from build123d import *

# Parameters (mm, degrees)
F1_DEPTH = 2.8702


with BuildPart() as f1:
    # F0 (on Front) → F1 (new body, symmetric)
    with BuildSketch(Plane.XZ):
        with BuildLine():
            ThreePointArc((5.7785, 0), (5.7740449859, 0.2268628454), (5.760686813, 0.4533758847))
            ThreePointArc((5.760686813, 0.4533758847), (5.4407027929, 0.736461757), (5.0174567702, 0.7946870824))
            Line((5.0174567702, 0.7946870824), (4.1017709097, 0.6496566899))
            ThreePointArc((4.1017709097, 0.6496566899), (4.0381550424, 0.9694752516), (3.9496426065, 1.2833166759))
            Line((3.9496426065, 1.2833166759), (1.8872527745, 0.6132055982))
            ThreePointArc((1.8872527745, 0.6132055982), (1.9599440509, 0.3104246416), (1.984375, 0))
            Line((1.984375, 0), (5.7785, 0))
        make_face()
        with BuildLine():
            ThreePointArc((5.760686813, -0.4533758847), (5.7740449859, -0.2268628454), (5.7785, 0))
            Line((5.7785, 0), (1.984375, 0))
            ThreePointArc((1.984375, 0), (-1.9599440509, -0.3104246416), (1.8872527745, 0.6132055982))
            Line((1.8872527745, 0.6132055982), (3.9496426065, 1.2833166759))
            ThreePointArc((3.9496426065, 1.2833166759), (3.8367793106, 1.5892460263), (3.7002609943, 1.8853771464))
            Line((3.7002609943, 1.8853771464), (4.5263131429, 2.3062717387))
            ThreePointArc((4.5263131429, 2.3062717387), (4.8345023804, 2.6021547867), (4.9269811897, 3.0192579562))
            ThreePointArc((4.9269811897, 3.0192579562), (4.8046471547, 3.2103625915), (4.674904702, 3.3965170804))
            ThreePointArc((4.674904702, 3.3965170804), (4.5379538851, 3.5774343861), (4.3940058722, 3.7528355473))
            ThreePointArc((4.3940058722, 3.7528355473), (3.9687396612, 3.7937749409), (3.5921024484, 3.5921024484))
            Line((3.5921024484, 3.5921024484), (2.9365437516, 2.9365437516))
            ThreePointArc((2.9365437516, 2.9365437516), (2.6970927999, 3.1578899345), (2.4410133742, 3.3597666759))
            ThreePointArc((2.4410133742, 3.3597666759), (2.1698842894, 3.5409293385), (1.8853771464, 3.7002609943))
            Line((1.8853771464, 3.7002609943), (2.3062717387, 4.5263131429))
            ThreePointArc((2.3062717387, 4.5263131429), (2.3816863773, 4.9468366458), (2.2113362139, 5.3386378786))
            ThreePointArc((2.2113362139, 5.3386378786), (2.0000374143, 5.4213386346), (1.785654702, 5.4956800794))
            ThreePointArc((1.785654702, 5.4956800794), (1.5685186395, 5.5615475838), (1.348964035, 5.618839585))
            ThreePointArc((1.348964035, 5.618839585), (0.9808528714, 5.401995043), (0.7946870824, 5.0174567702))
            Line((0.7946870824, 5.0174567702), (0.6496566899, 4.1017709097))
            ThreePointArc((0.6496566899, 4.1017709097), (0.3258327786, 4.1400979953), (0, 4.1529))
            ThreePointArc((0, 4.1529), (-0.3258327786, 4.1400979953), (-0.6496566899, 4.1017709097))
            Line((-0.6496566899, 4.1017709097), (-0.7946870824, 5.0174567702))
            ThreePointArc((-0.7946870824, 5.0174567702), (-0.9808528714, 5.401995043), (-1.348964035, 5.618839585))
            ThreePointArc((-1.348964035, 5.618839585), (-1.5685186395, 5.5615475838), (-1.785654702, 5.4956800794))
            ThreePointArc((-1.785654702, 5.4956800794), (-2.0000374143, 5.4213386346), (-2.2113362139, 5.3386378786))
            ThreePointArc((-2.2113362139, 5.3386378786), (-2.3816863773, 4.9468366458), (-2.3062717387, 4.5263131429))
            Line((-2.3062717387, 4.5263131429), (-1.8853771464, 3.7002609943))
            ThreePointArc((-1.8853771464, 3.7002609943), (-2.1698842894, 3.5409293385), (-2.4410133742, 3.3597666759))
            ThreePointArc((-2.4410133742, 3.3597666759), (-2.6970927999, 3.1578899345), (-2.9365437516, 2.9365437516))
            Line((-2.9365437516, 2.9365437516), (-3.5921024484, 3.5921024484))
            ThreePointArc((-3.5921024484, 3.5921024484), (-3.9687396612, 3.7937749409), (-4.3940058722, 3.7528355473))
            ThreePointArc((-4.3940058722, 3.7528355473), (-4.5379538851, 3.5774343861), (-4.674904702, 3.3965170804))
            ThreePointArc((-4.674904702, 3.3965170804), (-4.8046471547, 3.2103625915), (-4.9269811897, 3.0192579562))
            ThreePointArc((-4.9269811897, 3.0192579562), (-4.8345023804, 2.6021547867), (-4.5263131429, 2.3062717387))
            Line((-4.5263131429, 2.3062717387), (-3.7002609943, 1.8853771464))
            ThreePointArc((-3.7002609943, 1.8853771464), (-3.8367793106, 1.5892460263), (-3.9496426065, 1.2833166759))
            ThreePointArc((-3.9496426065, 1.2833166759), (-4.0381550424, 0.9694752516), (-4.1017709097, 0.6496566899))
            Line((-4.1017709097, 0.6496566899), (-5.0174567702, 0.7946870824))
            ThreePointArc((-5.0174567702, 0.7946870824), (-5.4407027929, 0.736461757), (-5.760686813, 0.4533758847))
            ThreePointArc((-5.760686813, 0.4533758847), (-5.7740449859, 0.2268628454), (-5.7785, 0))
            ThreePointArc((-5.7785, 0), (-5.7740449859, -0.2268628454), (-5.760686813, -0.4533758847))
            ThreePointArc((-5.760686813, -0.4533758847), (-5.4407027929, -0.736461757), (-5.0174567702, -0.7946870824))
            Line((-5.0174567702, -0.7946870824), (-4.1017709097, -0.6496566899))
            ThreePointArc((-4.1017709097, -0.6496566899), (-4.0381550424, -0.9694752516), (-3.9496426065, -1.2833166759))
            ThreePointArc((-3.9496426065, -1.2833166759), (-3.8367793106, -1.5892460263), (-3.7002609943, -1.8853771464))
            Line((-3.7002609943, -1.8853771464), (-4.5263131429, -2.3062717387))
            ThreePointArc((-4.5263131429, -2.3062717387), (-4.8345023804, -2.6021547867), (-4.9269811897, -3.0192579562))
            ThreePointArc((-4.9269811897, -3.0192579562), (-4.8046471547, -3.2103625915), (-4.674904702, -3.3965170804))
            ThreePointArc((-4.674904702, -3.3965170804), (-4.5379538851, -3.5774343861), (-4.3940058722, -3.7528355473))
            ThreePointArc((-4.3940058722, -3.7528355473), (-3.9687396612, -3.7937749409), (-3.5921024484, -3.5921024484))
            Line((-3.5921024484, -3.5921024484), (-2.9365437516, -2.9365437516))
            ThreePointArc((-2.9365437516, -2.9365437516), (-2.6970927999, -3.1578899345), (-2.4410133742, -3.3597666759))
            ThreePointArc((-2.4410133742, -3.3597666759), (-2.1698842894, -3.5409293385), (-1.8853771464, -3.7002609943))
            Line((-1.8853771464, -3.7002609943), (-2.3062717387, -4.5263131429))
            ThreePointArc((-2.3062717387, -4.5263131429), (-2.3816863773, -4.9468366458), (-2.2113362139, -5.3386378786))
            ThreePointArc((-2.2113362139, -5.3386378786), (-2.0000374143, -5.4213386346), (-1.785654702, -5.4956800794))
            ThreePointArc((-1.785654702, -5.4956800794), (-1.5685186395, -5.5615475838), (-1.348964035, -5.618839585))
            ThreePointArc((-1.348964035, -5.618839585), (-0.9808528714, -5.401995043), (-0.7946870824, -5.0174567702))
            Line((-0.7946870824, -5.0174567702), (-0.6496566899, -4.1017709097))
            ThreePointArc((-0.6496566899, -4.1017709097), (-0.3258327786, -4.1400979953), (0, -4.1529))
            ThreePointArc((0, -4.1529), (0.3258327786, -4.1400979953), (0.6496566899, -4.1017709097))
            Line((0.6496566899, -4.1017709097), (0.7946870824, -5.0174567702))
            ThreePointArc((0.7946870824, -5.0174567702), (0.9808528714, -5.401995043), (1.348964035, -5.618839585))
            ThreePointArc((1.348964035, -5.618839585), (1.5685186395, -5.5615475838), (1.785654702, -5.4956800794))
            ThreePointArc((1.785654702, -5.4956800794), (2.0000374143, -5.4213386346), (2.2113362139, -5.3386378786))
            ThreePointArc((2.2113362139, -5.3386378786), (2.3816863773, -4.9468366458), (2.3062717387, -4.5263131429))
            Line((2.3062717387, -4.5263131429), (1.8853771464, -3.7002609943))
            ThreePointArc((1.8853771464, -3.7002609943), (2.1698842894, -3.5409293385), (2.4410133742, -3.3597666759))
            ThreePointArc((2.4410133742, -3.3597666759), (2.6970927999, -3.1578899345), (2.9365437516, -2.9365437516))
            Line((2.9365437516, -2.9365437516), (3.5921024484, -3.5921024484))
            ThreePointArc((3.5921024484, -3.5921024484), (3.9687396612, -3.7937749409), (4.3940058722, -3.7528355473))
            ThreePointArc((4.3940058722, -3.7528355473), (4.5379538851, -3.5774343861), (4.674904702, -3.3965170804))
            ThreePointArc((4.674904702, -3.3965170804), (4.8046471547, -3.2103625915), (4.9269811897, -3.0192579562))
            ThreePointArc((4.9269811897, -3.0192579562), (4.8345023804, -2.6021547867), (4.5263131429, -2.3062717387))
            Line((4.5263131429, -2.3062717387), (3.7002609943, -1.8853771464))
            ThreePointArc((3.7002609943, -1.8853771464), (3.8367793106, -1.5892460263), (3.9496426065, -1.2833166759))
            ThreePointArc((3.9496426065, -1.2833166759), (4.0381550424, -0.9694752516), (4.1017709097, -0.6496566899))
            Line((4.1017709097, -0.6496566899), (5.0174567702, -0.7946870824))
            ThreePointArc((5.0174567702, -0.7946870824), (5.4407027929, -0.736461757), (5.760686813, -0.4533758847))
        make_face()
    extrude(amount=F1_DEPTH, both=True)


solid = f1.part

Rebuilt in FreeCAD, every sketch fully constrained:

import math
import FreeCAD as App
import Part
import Sketcher

V = App.Vector
Q = App.Units.Quantity

doc = App.newDocument("Part")
body = doc.addObject("PartDesign::Body", "Body")

sketch1 = doc.addObject("Sketcher::SketchObject", "Sketch")
body.addObject(sketch1)
sketch1.AttachmentSupport = (doc.XZ_Plane, [""])
sketch1.MapMode = "FlatFace"
sketch1.addGeometry(Part.ArcOfCircle(Part.Circle(V(0, 0, 0), V(0, 0, 1), 5.78), math.radians(0), math.radians(4.5)), False)
sketch1.addGeometry(Part.ArcOfCircle(Part.Circle(V(5.13, 0.07, 0), V(0, 0, 1), 0.74), math.radians(32), math.radians(99)), False)
sketch1.addGeometry(Part.LineSegment(V(5.02, 0.79, 0), V(4.1, 0.65, 0)), False)
sketch1.addGeometry(Part.ArcOfCircle(Part.Circle(V(0, 0, 0), V(0, 0, 1), 4.15), math.radians(9), math.radians(18)), False)
sketch1.addGeometry(Part.ArcOfCircle(Part.Circle(V(0, 0, 0), V(0, 0, 1), 4.15), math.radians(18), math.radians(27)), False)
sketch1.addGeometry(Part.LineSegment(V(3.7, 1.89, 0), V(4.53, 2.31, 0)), False)
sketch1.addGeometry(Part.ArcOfCircle(Part.Circle(V(4.19, 2.96, 0), V(0, 0, 1), 0.74), math.radians(-63), math.radians(4)), False)
sketch1.addGeometry(Part.ArcOfCircle(Part.Circle(V(0, 0, 0), V(0, 0, 1), 5.78), math.radians(31.5), math.radians(36)), False)
sketch1.addGeometry(Part.ArcOfCircle(Part.Circle(V(0, 0, 0), V(0, 0, 1), 5.78), math.radians(36), math.radians(40.5)), False)
sketch1.addGeometry(Part.ArcOfCircle(Part.Circle(V(4.11, 3.07, 0), V(0, 0, 1), 0.74), math.radians(68), math.radians(135)), False)
sketch1.addGeometry(Part.LineSegment(V(3.59, 3.59, 0), V(2.94, 2.94, 0)), False)
sketch1.addGeometry(Part.ArcOfCircle(Part.Circle(V(0, 0, 0), V(0, 0, 1), 4.15), math.radians(45), math.radians(63)), False)
sketch1.addGeometry(Part.LineSegment(V(1.89, 3.7, 0), V(2.31, 4.53, 0)), False)
sketch1.addGeometry(Part.ArcOfCircle(Part.Circle(V(1.65, 4.86, 0), V(0, 0, 1), 0.74), math.radians(-27), math.radians(40)), False)
sketch1.addGeometry(Part.ArcOfCircle(Part.Circle(V(0, 0, 0), V(0, 0, 1), 5.78), math.radians(67.5), math.radians(72)), False)
sketch1.addGeometry(Part.ArcOfCircle(Part.Circle(V(0, 0, 0), V(0, 0, 1), 5.78), math.radians(72), math.radians(76.5)), False)
sketch1.addGeometry(Part.ArcOfCircle(Part.Circle(V(1.52, 4.9, 0), V(0, 0, 1), 0.74), math.radians(104), math.radians(171)), False)
sketch1.addGeometry(Part.LineSegment(V(0.79, 5.02, 0), V(0.65, 4.1, 0)), False)
sketch1.addGeometry(Part.ArcOfCircle(Part.Circle(V(0, 0, 0), V(0, 0, 1), 4.15), math.radians(81), math.radians(90)), False)
sketch1.addGeometry(Part.ArcOfCircle(Part.Circle(V(0, 0, 0), V(0, 0, 1), 4.15), math.radians(90), math.radians(99)), False)
sketch1.addGeometry(Part.LineSegment(V(-0.65, 4.1, 0), V(-0.79, 5.02, 0)), False)
sketch1.addGeometry(Part.ArcOfCircle(Part.Circle(V(-1.52, 4.9, 0), V(0, 0, 1), 0.74), math.radians(9), math.radians(76)), False)
sketch1.addGeometry(Part.ArcOfCircle(Part.Circle(V(0, 0, 0), V(0, 0, 1), 5.78), math.radians(103.5), math.radians(108)), False)
sketch1.addGeometry(Part.ArcOfCircle(Part.Circle(V(0, 0, 0), V(0, 0, 1), 5.78), math.radians(108), math.radians(112.5)), False)
sketch1.addGeometry(Part.ArcOfCircle(Part.Circle(V(-1.65, 4.86, 0), V(0, 0, 1), 0.74), math.radians(140), math.radians(207)), False)
sketch1.addGeometry(Part.LineSegment(V(-2.31, 4.53, 0), V(-1.89, 3.7, 0)), False)
sketch1.addGeometry(Part.ArcOfCircle(Part.Circle(V(0, 0, 0), V(0, 0, 1), 4.15), math.radians(117), math.radians(135)), False)
sketch1.addGeometry(Part.LineSegment(V(-2.94, 2.94, 0), V(-3.59, 3.59, 0)), False)
sketch1.addGeometry(Part.ArcOfCircle(Part.Circle(V(-4.11, 3.07, 0), V(0, 0, 1), 0.74), math.radians(45), math.radians(112)), False)
sketch1.addGeometry(Part.ArcOfCircle(Part.Circle(V(0, 0, 0), V(0, 0, 1), 5.78), math.radians(139.5), math.radians(144)), False)
sketch1.addGeometry(Part.ArcOfCircle(Part.Circle(V(0, 0, 0), V(0, 0, 1), 5.78), math.radians(144), math.radians(148.5)), False)
sketch1.addGeometry(Part.ArcOfCircle(Part.Circle(V(-4.19, 2.96, 0), V(0, 0, 1), 0.74), math.radians(176), math.radians(243)), False)
sketch1.addGeometry(Part.LineSegment(V(-4.53, 2.31, 0), V(-3.7, 1.89, 0)), False)
sketch1.addGeometry(Part.ArcOfCircle(Part.Circle(V(0, 0, 0), V(0, 0, 1), 4.15), math.radians(153), math.radians(162)), False)
sketch1.addGeometry(Part.ArcOfCircle(Part.Circle(V(0, 0, 0), V(0, 0, 1), 4.15), math.radians(162), math.radians(171)), False)
sketch1.addGeometry(Part.LineSegment(V(-4.1, 0.65, 0), V(-5.02, 0.79, 0)), False)
sketch1.addGeometry(Part.ArcOfCircle(Part.Circle(V(-5.13, 0.07, 0), V(0, 0, 1), 0.74), math.radians(81), math.radians(148)), False)
sketch1.addGeometry(Part.ArcOfCircle(Part.Circle(V(0, 0, 0), V(0, 0, 1), 5.78), math.radians(175.5), math.radians(180)), False)
sketch1.addGeometry(Part.ArcOfCircle(Part.Circle(V(0, 0, 0), V(0, 0, 1), 5.78), math.radians(-180), math.radians(-175.5)), False)
sketch1.addGeometry(Part.ArcOfCircle(Part.Circle(V(-5.13, -0.07, 0), V(0, 0, 1), 0.74), math.radians(-148), math.radians(-81)), False)
sketch1.addGeometry(Part.LineSegment(V(-5.02, -0.79, 0), V(-4.1, -0.65, 0)), False)
sketch1.addGeometry(Part.ArcOfCircle(Part.Circle(V(0, 0, 0), V(0, 0, 1), 4.15), math.radians(-171), math.radians(-162)), False)
sketch1.addGeometry(Part.ArcOfCircle(Part.Circle(V(0, 0, 0), V(0, 0, 1), 4.15), math.radians(-162), math.radians(-153)), False)
sketch1.addGeometry(Part.LineSegment(V(-3.7, -1.89, 0), V(-4.53, -2.31, 0)), False)
sketch1.addGeometry(Part.ArcOfCircle(Part.Circle(V(-4.19, -2.96, 0), V(0, 0, 1), 0.74), math.radians(117), math.radians(184)), False)
sketch1.addGeometry(Part.ArcOfCircle(Part.Circle(V(0, 0, 0), V(0, 0, 1), 5.78), math.radians(-148.5), math.radians(-144)), False)
sketch1.addGeometry(Part.ArcOfCircle(Part.Circle(V(0, 0, 0), V(0, 0, 1), 5.78), math.radians(-144), math.radians(-139.5)), False)
sketch1.addGeometry(Part.ArcOfCircle(Part.Circle(V(-4.11, -3.07, 0), V(0, 0, 1), 0.74), math.radians(-112), math.radians(-45)), False)
sketch1.addGeometry(Part.LineSegment(V(-3.59, -3.59, 0), V(-2.94, -2.94, 0)), False)
sketch1.addGeometry(Part.ArcOfCircle(Part.Circle(V(0, 0, 0), V(0, 0, 1), 4.15), math.radians(-135), math.radians(-117)), False)
sketch1.addGeometry(Part.LineSegment(V(-1.89, -3.7, 0), V(-2.31, -4.53, 0)), False)
sketch1.addGeometry(Part.ArcOfCircle(Part.Circle(V(-1.65, -4.86, 0), V(0, 0, 1), 0.74), math.radians(153), math.radians(220)), False)
sketch1.addGeometry(Part.ArcOfCircle(Part.Circle(V(0, 0, 0), V(0, 0, 1), 5.78), math.radians(-112.5), math.radians(-108)), False)
sketch1.addGeometry(Part.ArcOfCircle(Part.Circle(V(0, 0, 0), V(0, 0, 1), 5.78), math.radians(-108), math.radians(-103.5)), False)
sketch1.addGeometry(Part.ArcOfCircle(Part.Circle(V(-1.52, -4.9, 0), V(0, 0, 1), 0.74), math.radians(-76), math.radians(-9)), False)
sketch1.addGeometry(Part.LineSegment(V(-0.79, -5.02, 0), V(-0.65, -4.1, 0)), False)
sketch1.addGeometry(Part.ArcOfCircle(Part.Circle(V(0, 0, 0), V(0, 0, 1), 4.15), math.radians(-99), math.radians(-90)), False)
sketch1.addGeometry(Part.ArcOfCircle(Part.Circle(V(0, 0, 0), V(0, 0, 1), 4.15), math.radians(-90), math.radians(-81)), False)
sketch1.addGeometry(Part.LineSegment(V(0.65, -4.1, 0), V(0.79, -5.02, 0)), False)
sketch1.addGeometry(Part.ArcOfCircle(Part.Circle(V(1.52, -4.9, 0), V(0, 0, 1), 0.74), math.radians(-171), math.radians(-104)), False)
sketch1.addGeometry(Part.ArcOfCircle(Part.Circle(V(0, 0, 0), V(0, 0, 1), 5.78), math.radians(-76.5), math.radians(-72)), False)
sketch1.addGeometry(Part.ArcOfCircle(Part.Circle(V(0, 0, 0), V(0, 0, 1), 5.78), math.radians(-72), math.radians(-67.5)), False)
sketch1.addGeometry(Part.ArcOfCircle(Part.Circle(V(1.65, -4.86, 0), V(0, 0, 1), 0.74), math.radians(-40), math.radians(27)), False)
sketch1.addGeometry(Part.LineSegment(V(2.31, -4.53, 0), V(1.89, -3.7, 0)), False)
sketch1.addGeometry(Part.ArcOfCircle(Part.Circle(V(0, 0, 0), V(0, 0, 1), 4.15), math.radians(-63), math.radians(-45)), False)
sketch1.addGeometry(Part.LineSegment(V(2.94, -2.94, 0), V(3.59, -3.59, 0)), False)
sketch1.addGeometry(Part.ArcOfCircle(Part.Circle(V(4.11, -3.07, 0), V(0, 0, 1), 0.74), math.radians(-135), math.radians(-68)), False)
sketch1.addGeometry(Part.ArcOfCircle(Part.Circle(V(0, 0, 0), V(0, 0, 1), 5.78), math.radians(-40.5), math.radians(-36)), False)
sketch1.addGeometry(Part.ArcOfCircle(Part.Circle(V(0, 0, 0), V(0, 0, 1), 5.78), math.radians(-36), math.radians(-31.5)), False)
sketch1.addGeometry(Part.ArcOfCircle(Part.Circle(V(4.19, -2.96, 0), V(0, 0, 1), 0.74), math.radians(-4), math.radians(63)), False)
sketch1.addGeometry(Part.LineSegment(V(4.53, -2.31, 0), V(3.7, -1.89, 0)), False)
sketch1.addGeometry(Part.ArcOfCircle(Part.Circle(V(0, 0, 0), V(0, 0, 1), 4.15), math.radians(-27), math.radians(-18)), False)
sketch1.addGeometry(Part.ArcOfCircle(Part.Circle(V(0, 0, 0), V(0, 0, 1), 4.15), math.radians(-18), math.radians(-9)), False)
sketch1.addGeometry(Part.LineSegment(V(4.1, -0.65, 0), V(5.02, -0.79, 0)), False)
sketch1.addGeometry(Part.ArcOfCircle(Part.Circle(V(5.13, -0.07, 0), V(0, 0, 1), 0.74), math.radians(-99), math.radians(-32)), False)
sketch1.addGeometry(Part.ArcOfCircle(Part.Circle(V(0, 0, 0), V(0, 0, 1), 5.78), math.radians(-4.5), math.radians(0)), False)
sketch1.addGeometry(Part.ArcOfCircle(Part.Circle(V(0, 0, 0), V(0, 0, 1), 1.98), math.radians(0), math.radians(18)), False)
sketch1.addGeometry(Part.ArcOfCircle(Part.Circle(V(0, 0, 0), V(0, 0, 1), 1.98), math.radians(18), math.radians(360)), False)
sketch1.addConstraint(Sketcher.Constraint("Coincident", 0, 2, 1, 1))
sketch1.addConstraint(Sketcher.Constraint("Tangent", 1, 2, 2, 1))
sketch1.addConstraint(Sketcher.Constraint("Coincident", 2, 2, 3, 1))
sketch1.addConstraint(Sketcher.Constraint("Tangent", 3, 2, 4, 1))
sketch1.addConstraint(Sketcher.Constraint("Coincident", 4, 2, 5, 1))
sketch1.addConstraint(Sketcher.Constraint("Tangent", 5, 2, 6, 1))
sketch1.addConstraint(Sketcher.Constraint("Coincident", 6, 2, 7, 1))
sketch1.addConstraint(Sketcher.Constraint("Tangent", 7, 2, 8, 1))
sketch1.addConstraint(Sketcher.Constraint("Coincident", 8, 2, 9, 1))
sketch1.addConstraint(Sketcher.Constraint("Tangent", 9, 2, 10, 1))
sketch1.addConstraint(Sketcher.Constraint("Coincident", 10, 2, 11, 1))
sketch1.addConstraint(Sketcher.Constraint("Coincident", 11, 2, 12, 1))
sketch1.addConstraint(Sketcher.Constraint("Tangent", 12, 2, 13, 1))
sketch1.addConstraint(Sketcher.Constraint("Coincident", 13, 2, 14, 1))
sketch1.addConstraint(Sketcher.Constraint("Tangent", 14, 2, 15, 1))
sketch1.addConstraint(Sketcher.Constraint("Coincident", 15, 2, 16, 1))
sketch1.addConstraint(Sketcher.Constraint("Tangent", 16, 2, 17, 1))
sketch1.addConstraint(Sketcher.Constraint("Coincident", 17, 2, 18, 1))
sketch1.addConstraint(Sketcher.Constraint("Tangent", 18, 2, 19, 1))
sketch1.addConstraint(Sketcher.Constraint("Coincident", 19, 2, 20, 1))
sketch1.addConstraint(Sketcher.Constraint("Tangent", 20, 2, 21, 1))
sketch1.addConstraint(Sketcher.Constraint("Coincident", 21, 2, 22, 1))
sketch1.addConstraint(Sketcher.Constraint("Tangent", 22, 2, 23, 1))
sketch1.addConstraint(Sketcher.Constraint("Coincident", 23, 2, 24, 1))
sketch1.addConstraint(Sketcher.Constraint("Tangent", 24, 2, 25, 1))
sketch1.addConstraint(Sketcher.Constraint("Coincident", 25, 2, 26, 1))
sketch1.addConstraint(Sketcher.Constraint("Coincident", 26, 2, 27, 1))
sketch1.addConstraint(Sketcher.Constraint("Tangent", 27, 2, 28, 1))
sketch1.addConstraint(Sketcher.Constraint("Coincident", 28, 2, 29, 1))
sketch1.addConstraint(Sketcher.Constraint("Tangent", 29, 2, 30, 1))
sketch1.addConstraint(Sketcher.Constraint("Coincident", 30, 2, 31, 1))
sketch1.addConstraint(Sketcher.Constraint("Tangent", 31, 2, 32, 1))
sketch1.addConstraint(Sketcher.Constraint("Coincident", 32, 2, 33, 1))
sketch1.addConstraint(Sketcher.Constraint("Tangent", 33, 2, 34, 1))
sketch1.addConstraint(Sketcher.Constraint("Coincident", 34, 2, 35, 1))
sketch1.addConstraint(Sketcher.Constraint("Tangent", 35, 2, 36, 1))
sketch1.addConstraint(Sketcher.Constraint("Coincident", 36, 2, 37, 1))
sketch1.addConstraint(Sketcher.Constraint("Tangent", 37, 2, 38, 1))
sketch1.addConstraint(Sketcher.Constraint("Coincident", 38, 2, 39, 1))
sketch1.addConstraint(Sketcher.Constraint("Tangent", 39, 2, 40, 1))
sketch1.addConstraint(Sketcher.Constraint("Coincident", 40, 2, 41, 1))
sketch1.addConstraint(Sketcher.Constraint("Tangent", 41, 2, 42, 1))
sketch1.addConstraint(Sketcher.Constraint("Coincident", 42, 2, 43, 1))
sketch1.addConstraint(Sketcher.Constraint("Tangent", 43, 2, 44, 1))
sketch1.addConstraint(Sketcher.Constraint("Coincident", 44, 2, 45, 1))
sketch1.addConstraint(Sketcher.Constraint("Tangent", 45, 2, 46, 1))
sketch1.addConstraint(Sketcher.Constraint("Coincident", 46, 2, 47, 1))
sketch1.addConstraint(Sketcher.Constraint("Tangent", 47, 2, 48, 1))
sketch1.addConstraint(Sketcher.Constraint("Coincident", 48, 2, 49, 1))
sketch1.addConstraint(Sketcher.Constraint("Coincident", 49, 2, 50, 1))
sketch1.addConstraint(Sketcher.Constraint("Tangent", 50, 2, 51, 1))
sketch1.addConstraint(Sketcher.Constraint("Coincident", 51, 2, 52, 1))
sketch1.addConstraint(Sketcher.Constraint("Tangent", 52, 2, 53, 1))
sketch1.addConstraint(Sketcher.Constraint("Coincident", 53, 2, 54, 1))
sketch1.addConstraint(Sketcher.Constraint("Tangent", 54, 2, 55, 1))
sketch1.addConstraint(Sketcher.Constraint("Coincident", 55, 2, 56, 1))
sketch1.addConstraint(Sketcher.Constraint("Tangent", 56, 2, 57, 1))
sketch1.addConstraint(Sketcher.Constraint("Coincident", 57, 2, 58, 1))
sketch1.addConstraint(Sketcher.Constraint("Tangent", 58, 2, 59, 1))
sketch1.addConstraint(Sketcher.Constraint("Coincident", 59, 2, 60, 1))
sketch1.addConstraint(Sketcher.Constraint("Tangent", 60, 2, 61, 1))
sketch1.addConstraint(Sketcher.Constraint("Coincident", 61, 2, 62, 1))
sketch1.addConstraint(Sketcher.Constraint("Tangent", 62, 2, 63, 1))
sketch1.addConstraint(Sketcher.Constraint("Coincident", 63, 2, 64, 1))
sketch1.addConstraint(Sketcher.Constraint("Coincident", 64, 2, 65, 1))
sketch1.addConstraint(Sketcher.Constraint("Tangent", 65, 2, 66, 1))
sketch1.addConstraint(Sketcher.Constraint("Coincident", 66, 2, 67, 1))
sketch1.addConstraint(Sketcher.Constraint("Tangent", 67, 2, 68, 1))
sketch1.addConstraint(Sketcher.Constraint("Coincident", 68, 2, 69, 1))
sketch1.addConstraint(Sketcher.Constraint("Tangent", 69, 2, 70, 1))
sketch1.addConstraint(Sketcher.Constraint("Coincident", 70, 2, 71, 1))
sketch1.addConstraint(Sketcher.Constraint("Tangent", 71, 2, 72, 1))
sketch1.addConstraint(Sketcher.Constraint("Coincident", 72, 2, 73, 1))
sketch1.addConstraint(Sketcher.Constraint("Tangent", 73, 2, 74, 1))
sketch1.addConstraint(Sketcher.Constraint("Coincident", 74, 2, 75, 1))
sketch1.addConstraint(Sketcher.Constraint("Tangent", 75, 2, 0, 1))
sketch1.addConstraint(Sketcher.Constraint("Tangent", 76, 1, 77, 2))
sketch1.addConstraint(Sketcher.Constraint("Coincident", 77, 1, 76, 2))
sketch1.addConstraint(Sketcher.Constraint("Coincident", 0, 3, -1, 1))
sketch1.addConstraint(Sketcher.Constraint("Coincident", 3, 3, -1, 1))
sketch1.addConstraint(Sketcher.Constraint("Coincident", 7, 3, -1, 1))
sketch1.addConstraint(Sketcher.Constraint("Coincident", 11, 3, -1, 1))
sketch1.addConstraint(Sketcher.Constraint("Coincident", 14, 3, -1, 1))
sketch1.addConstraint(Sketcher.Constraint("Coincident", 18, 3, -1, 1))
sketch1.addConstraint(Sketcher.Constraint("Coincident", 22, 3, -1, 1))
sketch1.addConstraint(Sketcher.Constraint("Coincident", 26, 3, -1, 1))
sketch1.addConstraint(Sketcher.Constraint("Coincident", 29, 3, -1, 1))
sketch1.addConstraint(Sketcher.Constraint("Coincident", 33, 3, -1, 1))
sketch1.addConstraint(Sketcher.Constraint("Coincident", 37, 3, -1, 1))
sketch1.addConstraint(Sketcher.Constraint("Coincident", 41, 3, -1, 1))
sketch1.addConstraint(Sketcher.Constraint("Coincident", 45, 3, -1, 1))
sketch1.addConstraint(Sketcher.Constraint("Coincident", 49, 3, -1, 1))
sketch1.addConstraint(Sketcher.Constraint("Coincident", 52, 3, -1, 1))
sketch1.addConstraint(Sketcher.Constraint("Coincident", 56, 3, -1, 1))
sketch1.addConstraint(Sketcher.Constraint("Coincident", 60, 3, -1, 1))
sketch1.addConstraint(Sketcher.Constraint("Coincident", 64, 3, -1, 1))
sketch1.addConstraint(Sketcher.Constraint("Coincident", 67, 3, -1, 1))
sketch1.addConstraint(Sketcher.Constraint("Coincident", 71, 3, -1, 1))
sketch1.addConstraint(Sketcher.Constraint("Coincident", 76, 3, -1, 1))
sketch1.addConstraint(Sketcher.Constraint("Equal", 3, 4))
sketch1.addConstraint(Sketcher.Constraint("Equal", 1, 6))
sketch1.addConstraint(Sketcher.Constraint("Equal", 0, 7))
sketch1.addConstraint(Sketcher.Constraint("Equal", 7, 8))
sketch1.addConstraint(Sketcher.Constraint("Equal", 6, 9))
sketch1.addConstraint(Sketcher.Constraint("Equal", 4, 11))
sketch1.addConstraint(Sketcher.Constraint("Equal", 9, 13))
sketch1.addConstraint(Sketcher.Constraint("Equal", 8, 14))
sketch1.addConstraint(Sketcher.Constraint("Equal", 14, 15))
sketch1.addConstraint(Sketcher.Constraint("Equal", 13, 16))
sketch1.addConstraint(Sketcher.Constraint("Equal", 11, 18))
sketch1.addConstraint(Sketcher.Constraint("Equal", 18, 19))
sketch1.addConstraint(Sketcher.Constraint("Equal", 16, 21))
sketch1.addConstraint(Sketcher.Constraint("Equal", 15, 22))
sketch1.addConstraint(Sketcher.Constraint("Equal", 22, 23))
sketch1.addConstraint(Sketcher.Constraint("Equal", 21, 24))
sketch1.addConstraint(Sketcher.Constraint("Equal", 19, 26))
sketch1.addConstraint(Sketcher.Constraint("Equal", 24, 28))
sketch1.addConstraint(Sketcher.Constraint("Equal", 23, 29))
sketch1.addConstraint(Sketcher.Constraint("Equal", 29, 30))
sketch1.addConstraint(Sketcher.Constraint("Equal", 28, 31))
sketch1.addConstraint(Sketcher.Constraint("Equal", 26, 33))
sketch1.addConstraint(Sketcher.Constraint("Equal", 33, 34))
sketch1.addConstraint(Sketcher.Constraint("Equal", 31, 36))
sketch1.addConstraint(Sketcher.Constraint("Equal", 30, 37))
sketch1.addConstraint(Sketcher.Constraint("Equal", 37, 38))
sketch1.addConstraint(Sketcher.Constraint("Equal", 36, 39))
sketch1.addConstraint(Sketcher.Constraint("Equal", 34, 41))
sketch1.addConstraint(Sketcher.Constraint("Equal", 41, 42))
sketch1.addConstraint(Sketcher.Constraint("Equal", 39, 44))
sketch1.addConstraint(Sketcher.Constraint("Equal", 38, 45))
sketch1.addConstraint(Sketcher.Constraint("Equal", 45, 46))
sketch1.addConstraint(Sketcher.Constraint("Equal", 44, 47))
sketch1.addConstraint(Sketcher.Constraint("Equal", 42, 49))
sketch1.addConstraint(Sketcher.Constraint("Equal", 47, 51))
sketch1.addConstraint(Sketcher.Constraint("Equal", 46, 52))
sketch1.addConstraint(Sketcher.Constraint("Equal", 52, 53))
sketch1.addConstraint(Sketcher.Constraint("Equal", 51, 54))
sketch1.addConstraint(Sketcher.Constraint("Equal", 49, 56))
sketch1.addConstraint(Sketcher.Constraint("Equal", 56, 57))
sketch1.addConstraint(Sketcher.Constraint("Equal", 54, 59))
sketch1.addConstraint(Sketcher.Constraint("Equal", 53, 60))
sketch1.addConstraint(Sketcher.Constraint("Equal", 60, 61))
sketch1.addConstraint(Sketcher.Constraint("Equal", 59, 62))
sketch1.addConstraint(Sketcher.Constraint("Equal", 57, 64))
sketch1.addConstraint(Sketcher.Constraint("Equal", 62, 66))
sketch1.addConstraint(Sketcher.Constraint("Equal", 61, 67))
sketch1.addConstraint(Sketcher.Constraint("Equal", 67, 68))
sketch1.addConstraint(Sketcher.Constraint("Equal", 66, 69))
sketch1.addConstraint(Sketcher.Constraint("Equal", 64, 71))
sketch1.addConstraint(Sketcher.Constraint("Equal", 71, 72))
sketch1.addConstraint(Sketcher.Constraint("Equal", 69, 74))
sketch1.addConstraint(Sketcher.Constraint("Equal", 68, 75))
sketch1.addConstraint(Sketcher.Constraint("Symmetric", 1, 3, 39, 3, -1, 1))
sketch1.addConstraint(Sketcher.Constraint("Symmetric", 6, 3, 44, 3, -1, 1))
sketch1.addConstraint(Sketcher.Constraint("Symmetric", 9, 3, 47, 3, -1, 1))
sketch1.addConstraint(Sketcher.Constraint("Symmetric", 13, 3, 51, 3, -1, 1))
sketch1.addConstraint(Sketcher.Constraint("Symmetric", 16, 3, 54, 3, -1, 1))
sketch1.addConstraint(Sketcher.Constraint("Symmetric", 21, 3, 59, 3, -1, 1))
sketch1.addConstraint(Sketcher.Constraint("Symmetric", 24, 3, 62, 3, -1, 1))
sketch1.addConstraint(Sketcher.Constraint("Symmetric", 28, 3, 66, 3, -1, 1))
sketch1.addConstraint(Sketcher.Constraint("Symmetric", 31, 3, 69, 3, -1, 1))
sketch1.addConstraint(Sketcher.Constraint("Symmetric", 36, 3, 74, 3, -1, 1))
sketch1.addConstraint(Sketcher.Constraint("Symmetric", 16, 3, 21, 3, -2))
sketch1.addConstraint(Sketcher.Constraint("Symmetric", 13, 3, 24, 3, -2))
sketch1.addConstraint(Sketcher.Constraint("Symmetric", 9, 3, 28, 3, -2))
sketch1.addConstraint(Sketcher.Constraint("Symmetric", 6, 3, 31, 3, -2))
sketch1.addConstraint(Sketcher.Constraint("Symmetric", 1, 3, 36, 3, -2))
sketch1.addConstraint(Sketcher.Constraint("PointOnObject", 18, 2, -2))
sketch1.addConstraint(Sketcher.Constraint("PointOnObject", 37, 2, -1))
sketch1.addConstraint(Sketcher.Constraint("PointOnObject", 56, 2, -2))
sketch1.addConstraint(Sketcher.Constraint("PointOnObject", 75, 2, -1))
sketch1.addConstraint(Sketcher.Constraint("PointOnObject", 76, 1, -1))
sketch1.addConstraint(Sketcher.Constraint("Perpendicular", 2, 20))
sketch1.addConstraint(Sketcher.Constraint("Perpendicular", 5, 25))
sketch1.addConstraint(Sketcher.Constraint("Perpendicular", 10, 27))
sketch1.addConstraint(Sketcher.Constraint("Perpendicular", 12, 32))
sketch1.addConstraint(Sketcher.Constraint("Perpendicular", 17, 35))
sketch1.addConstraint(Sketcher.Constraint("Perpendicular", 20, 40))
sketch1.addConstraint(Sketcher.Constraint("Perpendicular", 25, 43))
sketch1.addConstraint(Sketcher.Constraint("Perpendicular", 27, 48))
sketch1.addConstraint(Sketcher.Constraint("Perpendicular", 32, 50))
sketch1.addConstraint(Sketcher.Constraint("Perpendicular", 35, 55))
sketch1.addConstraint(Sketcher.Constraint("Perpendicular", 40, 58))
sketch1.addConstraint(Sketcher.Constraint("Perpendicular", 43, 63))
sketch1.addConstraint(Sketcher.Constraint("Perpendicular", 48, 65))
sketch1.addConstraint(Sketcher.Constraint("Perpendicular", 50, 70))
sketch1.addConstraint(Sketcher.Constraint("Perpendicular", 55, 73))
sketch1.addConstraint(Sketcher.Constraint("Horizontal", 17, 2, 19, 2))
sketch1.addConstraint(Sketcher.Constraint("Horizontal", 14, 2, 22, 2))
sketch1.addConstraint(Sketcher.Constraint("Horizontal", 12, 2, 24, 2))
sketch1.addConstraint(Sketcher.Constraint("Horizontal", 10, 2, 26, 2))
sketch1.addConstraint(Sketcher.Constraint("Horizontal", 7, 2, 29, 2))
sketch1.addConstraint(Sketcher.Constraint("Horizontal", 3, 2, 33, 2))
sketch1.addConstraint(Sketcher.Constraint("Horizontal", 52, 2, 60, 2))
sketch1.addConstraint(Sketcher.Constraint("Horizontal", 45, 2, 67, 2))
sketch1.addConstraint(Sketcher.Constraint("Horizontal", 41, 2, 71, 2))
sketch1.addConstraint(Sketcher.Constraint("Vertical", 33, 2, 41, 2))
sketch1.addConstraint(Sketcher.Constraint("Vertical", 29, 2, 45, 2))
sketch1.addConstraint(Sketcher.Constraint("Vertical", 22, 2, 52, 2))
sketch1.addConstraint(Sketcher.Constraint("Equal", 2, 5))
sketch1.addConstraint(Sketcher.Constraint("Equal", 5, 10))
sketch1.addConstraint(Sketcher.Constraint("Equal", 10, 12))
sketch1.addConstraint(Sketcher.Constraint("Equal", 12, 17))
sketch1.addConstraint(Sketcher.Constraint("Angle", 2, Q("-171 deg")))
sketch1.addConstraint(Sketcher.Constraint("Angle", 5, Q("27 deg")))
sketch1.addConstraint(Sketcher.Constraint("Radius", 76, Q("0.078125 in")))
sketch1.addConstraint(Sketcher.Constraint("Radius", 0, Q("0.2275 in")))
sketch1.addConstraint(Sketcher.Constraint("Radius", 3, Q("0.1635 in")))
sketch1.addConstraint(Sketcher.Constraint("Radius", 1, 0.737671))
sketch1.addConstraint(Sketcher.Constraint("Distance", 2, Q("0.0365 in")))
sketch1.addConstraint(Sketcher.Constraint("DistanceY", -1, 1, 1, 3, 0.066098))
sketch1.addConstraint(Sketcher.Constraint("DistanceY", -1, 1, 6, 3, 2.963541))
sketch1.addConstraint(Sketcher.Constraint("DistanceY", -1, 1, 9, 3, 3.07049))
sketch1.addConstraint(Sketcher.Constraint("DistanceY", -1, 1, 13, 3, 4.861209))
sketch1.addConstraint(Sketcher.Constraint("DistanceY", -1, 1, 16, 3, 4.90206))
sketch1.addConstraint(Sketcher.Constraint("DistanceY", -1, 1, 14, 2, 5.49568))
sketch1.addConstraint(Sketcher.Constraint("DistanceX", -1, 1, 3, 2, 3.949643))
sketch1.addConstraint(Sketcher.Constraint("DistanceX", -1, 1, 7, 2, 4.674905))
sketch1.addConstraint(Sketcher.Constraint("DistanceX", -1, 1, 77, 1, 1.887253))
pad1 = doc.addObject("PartDesign::Pad", "Pad")
body.addObject(pad1)
pad1.Profile = sketch1
pad1.Length = Q("0.226 in")
pad1.Midplane = True

doc.recompute()
